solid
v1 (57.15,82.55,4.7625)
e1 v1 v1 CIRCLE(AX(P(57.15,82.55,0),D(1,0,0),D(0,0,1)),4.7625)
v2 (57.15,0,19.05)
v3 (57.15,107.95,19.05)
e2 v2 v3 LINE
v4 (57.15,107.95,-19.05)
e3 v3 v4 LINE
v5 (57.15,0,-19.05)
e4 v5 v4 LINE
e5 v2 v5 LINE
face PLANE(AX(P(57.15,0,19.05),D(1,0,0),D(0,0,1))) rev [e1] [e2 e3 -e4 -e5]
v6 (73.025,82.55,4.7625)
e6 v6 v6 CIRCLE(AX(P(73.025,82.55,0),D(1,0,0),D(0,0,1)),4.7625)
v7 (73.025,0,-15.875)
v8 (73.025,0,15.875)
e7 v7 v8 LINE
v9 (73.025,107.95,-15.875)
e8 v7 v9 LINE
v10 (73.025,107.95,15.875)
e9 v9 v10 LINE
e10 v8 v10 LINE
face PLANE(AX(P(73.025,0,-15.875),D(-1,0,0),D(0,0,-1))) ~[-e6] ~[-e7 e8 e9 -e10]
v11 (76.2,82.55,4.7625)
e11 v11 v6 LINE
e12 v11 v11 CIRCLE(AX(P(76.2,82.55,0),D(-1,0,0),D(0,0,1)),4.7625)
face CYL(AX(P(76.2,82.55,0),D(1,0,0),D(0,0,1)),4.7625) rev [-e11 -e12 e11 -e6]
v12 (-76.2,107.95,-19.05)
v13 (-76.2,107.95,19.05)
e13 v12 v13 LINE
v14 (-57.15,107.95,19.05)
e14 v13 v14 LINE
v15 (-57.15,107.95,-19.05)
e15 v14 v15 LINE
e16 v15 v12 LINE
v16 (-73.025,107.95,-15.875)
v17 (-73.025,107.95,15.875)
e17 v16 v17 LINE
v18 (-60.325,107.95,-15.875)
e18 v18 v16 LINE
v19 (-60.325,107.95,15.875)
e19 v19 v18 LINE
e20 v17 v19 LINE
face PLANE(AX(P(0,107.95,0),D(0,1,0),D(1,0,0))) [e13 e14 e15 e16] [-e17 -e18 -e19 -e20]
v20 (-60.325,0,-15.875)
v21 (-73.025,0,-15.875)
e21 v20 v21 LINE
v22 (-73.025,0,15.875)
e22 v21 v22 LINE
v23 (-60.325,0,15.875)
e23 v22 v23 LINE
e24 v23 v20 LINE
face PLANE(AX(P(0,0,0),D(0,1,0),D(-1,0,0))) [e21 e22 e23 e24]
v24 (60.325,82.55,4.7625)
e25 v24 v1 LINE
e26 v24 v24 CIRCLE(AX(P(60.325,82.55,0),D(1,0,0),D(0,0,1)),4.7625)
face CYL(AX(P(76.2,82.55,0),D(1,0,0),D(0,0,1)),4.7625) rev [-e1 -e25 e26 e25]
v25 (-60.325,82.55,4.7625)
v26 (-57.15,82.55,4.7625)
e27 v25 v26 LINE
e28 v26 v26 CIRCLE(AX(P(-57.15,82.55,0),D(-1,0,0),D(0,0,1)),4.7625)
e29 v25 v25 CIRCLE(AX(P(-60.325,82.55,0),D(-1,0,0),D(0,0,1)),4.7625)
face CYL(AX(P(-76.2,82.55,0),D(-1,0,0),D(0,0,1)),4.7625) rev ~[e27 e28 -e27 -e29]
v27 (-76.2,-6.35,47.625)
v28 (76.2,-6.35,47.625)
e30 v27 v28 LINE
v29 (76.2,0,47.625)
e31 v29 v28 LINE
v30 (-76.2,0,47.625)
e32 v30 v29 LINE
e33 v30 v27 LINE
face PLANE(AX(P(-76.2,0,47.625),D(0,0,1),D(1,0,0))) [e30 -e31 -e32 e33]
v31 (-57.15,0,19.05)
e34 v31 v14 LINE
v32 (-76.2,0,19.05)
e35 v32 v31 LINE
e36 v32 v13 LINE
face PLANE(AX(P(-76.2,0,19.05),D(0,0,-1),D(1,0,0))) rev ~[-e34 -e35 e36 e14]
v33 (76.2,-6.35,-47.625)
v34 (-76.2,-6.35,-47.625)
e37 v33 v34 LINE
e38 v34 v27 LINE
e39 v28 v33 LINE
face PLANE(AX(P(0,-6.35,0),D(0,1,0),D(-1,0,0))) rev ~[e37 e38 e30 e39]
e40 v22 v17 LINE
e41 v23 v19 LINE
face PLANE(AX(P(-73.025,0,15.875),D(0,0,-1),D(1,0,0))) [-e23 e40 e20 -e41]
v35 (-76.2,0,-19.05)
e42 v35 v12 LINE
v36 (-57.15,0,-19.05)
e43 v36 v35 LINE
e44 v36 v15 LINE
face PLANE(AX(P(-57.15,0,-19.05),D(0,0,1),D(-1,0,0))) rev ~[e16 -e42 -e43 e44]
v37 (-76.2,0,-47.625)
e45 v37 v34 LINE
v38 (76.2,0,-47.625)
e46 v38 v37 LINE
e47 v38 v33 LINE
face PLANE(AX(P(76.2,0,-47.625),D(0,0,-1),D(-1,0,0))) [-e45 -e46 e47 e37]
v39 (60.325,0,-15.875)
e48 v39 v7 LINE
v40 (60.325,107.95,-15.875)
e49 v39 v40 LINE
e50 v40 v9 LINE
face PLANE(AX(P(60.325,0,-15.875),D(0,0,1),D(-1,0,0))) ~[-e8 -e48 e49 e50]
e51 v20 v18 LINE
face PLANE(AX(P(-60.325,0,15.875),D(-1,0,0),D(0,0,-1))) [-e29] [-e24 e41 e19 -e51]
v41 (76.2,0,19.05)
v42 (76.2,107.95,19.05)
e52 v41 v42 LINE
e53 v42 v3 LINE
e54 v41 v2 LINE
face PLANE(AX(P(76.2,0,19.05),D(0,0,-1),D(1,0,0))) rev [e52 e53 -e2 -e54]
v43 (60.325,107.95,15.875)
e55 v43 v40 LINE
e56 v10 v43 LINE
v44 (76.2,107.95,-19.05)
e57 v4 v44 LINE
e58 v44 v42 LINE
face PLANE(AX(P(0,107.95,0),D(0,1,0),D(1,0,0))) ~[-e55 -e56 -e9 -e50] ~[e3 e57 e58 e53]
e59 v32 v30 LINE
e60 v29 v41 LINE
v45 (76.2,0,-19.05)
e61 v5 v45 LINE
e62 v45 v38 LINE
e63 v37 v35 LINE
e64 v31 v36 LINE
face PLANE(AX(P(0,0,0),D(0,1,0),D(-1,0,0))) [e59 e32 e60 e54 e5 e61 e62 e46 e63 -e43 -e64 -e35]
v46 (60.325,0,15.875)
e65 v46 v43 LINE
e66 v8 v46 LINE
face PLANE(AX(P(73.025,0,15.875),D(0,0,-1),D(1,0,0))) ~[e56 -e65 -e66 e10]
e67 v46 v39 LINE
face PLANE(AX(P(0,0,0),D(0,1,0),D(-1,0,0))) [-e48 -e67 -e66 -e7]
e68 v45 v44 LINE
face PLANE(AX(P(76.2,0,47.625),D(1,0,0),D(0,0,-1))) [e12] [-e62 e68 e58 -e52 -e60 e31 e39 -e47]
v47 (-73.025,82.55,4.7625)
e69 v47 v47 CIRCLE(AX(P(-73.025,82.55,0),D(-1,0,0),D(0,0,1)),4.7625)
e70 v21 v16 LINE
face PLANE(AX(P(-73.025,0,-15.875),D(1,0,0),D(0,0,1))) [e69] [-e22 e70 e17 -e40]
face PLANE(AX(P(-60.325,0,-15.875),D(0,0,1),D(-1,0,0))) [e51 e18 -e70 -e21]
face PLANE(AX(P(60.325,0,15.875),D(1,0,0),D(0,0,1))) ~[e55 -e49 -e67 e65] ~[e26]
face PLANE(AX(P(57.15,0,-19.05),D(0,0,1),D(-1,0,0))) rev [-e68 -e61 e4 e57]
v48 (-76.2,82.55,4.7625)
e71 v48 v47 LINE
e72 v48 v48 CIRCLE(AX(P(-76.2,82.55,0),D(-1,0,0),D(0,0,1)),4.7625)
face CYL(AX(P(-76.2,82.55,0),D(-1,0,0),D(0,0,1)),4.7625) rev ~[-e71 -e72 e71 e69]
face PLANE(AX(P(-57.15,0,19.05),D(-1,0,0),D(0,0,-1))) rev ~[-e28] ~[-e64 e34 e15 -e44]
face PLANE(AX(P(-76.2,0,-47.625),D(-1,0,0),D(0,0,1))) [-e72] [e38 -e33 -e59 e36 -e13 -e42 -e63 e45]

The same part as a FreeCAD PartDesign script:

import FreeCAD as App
import Part
import Sketcher

V = App.Vector
Q = App.Units.Quantity


def add_polygon(sketch, points):
    """Adds a closed chain of lines whose ends are joined by coincident constraints."""
    first, n = sketch.GeometryCount, len(points)
    for a, b in zip(points, points[1:] + points[:1]):
        sketch.addGeometry(Part.LineSegment(App.Vector(*a, 0), App.Vector(*b, 0)), False)
    for i in range(n):
        sketch.addConstraint(Sketcher.Constraint("Coincident", first + i, 2, first + (i + 1) % n, 1))

doc = App.newDocument("Part")
body = doc.addObject("PartDesign::Body", "Body")

# Sketch on XZ plane
sketch1 = body.newObject("Sketcher::SketchObject", "Sketch")
sketch1.AttachmentSupport = (doc.getObject("XZ_Plane"), [""])
sketch1.MapMode = "FlatFace"
add_polygon(sketch1, [(-76, -48), (-76, 48), (76, 48), (76, -48)])  # lines 0-3
sketch1.addConstraint([
    Sketcher.Constraint("Vertical", 0),
    Sketcher.Constraint("Horizontal", 1),
    Sketcher.Constraint("Vertical", 2),
    Sketcher.Constraint("Horizontal", 3),
    Sketcher.Constraint("Symmetric", 0, 2, 2, 2, -1, 1),
    Sketcher.Constraint("DistanceX", 1, 1, 1, 2, Q("6 in")),
    Sketcher.Constraint("DistanceY", 0, 1, 0, 2, Q("3.75 in")),
])
pad1 = body.newObject("PartDesign::Pad", "Pad")
pad1.Profile = sketch1
pad1.Length = Q("0.25 in")

# Sketch on XZ plane
sketch2 = body.newObject("Sketcher::SketchObject", "Sketch001")
sketch2.AttachmentSupport = (doc.getObject("XZ_Plane"), [""])
sketch2.MapMode = "FlatFace"
add_polygon(sketch2, [(-76, -19), (-76, 19), (-57, 19), (-57, -19)])  # lines 0-3
add_polygon(sketch2, [(-60, 16), (-73, 16), (-73, -16), (-60, -16)])  # lines 4-7
sketch2.addConstraint([
    Sketcher.Constraint("Vertical", 0),
    Sketcher.Constraint("Horizontal", 1),
    Sketcher.Constraint("Vertical", 2),
    Sketcher.Constraint("Horizontal", 3),
    Sketcher.Constraint("Horizontal", 4),
    Sketcher.Constraint("Vertical", 5),
    Sketcher.Constraint("Horizontal", 6),
    Sketcher.Constraint("Vertical", 7),
    Sketcher.Constraint("DistanceY", 0, 1, 0, 2, Q("1.5 in")),
    Sketcher.Constraint("DistanceX", 1, 1, 1, 2, Q("0.75 in")),
    Sketcher.Constraint("DistanceY", -1, 1, 0, 2, Q("0.75 in")),
    Sketcher.Constraint("DistanceX", 4, 2, 4, 1, Q("0.5 in")),
    Sketcher.Constraint("DistanceX", 0, 2, -1, 1, Q("3 in")),
    Sketcher.Constraint("DistanceX", 0, 2, 4, 2, Q("0.125 in")),
    Sketcher.Constraint("DistanceY", 4, 2, 0, 2, Q("0.125 in")),
    Sketcher.Constraint("DistanceY", 3, 2, 5, 2, Q("0.125 in")),
])
pad2 = body.newObject("PartDesign::Pad", "Pad001")
pad2.Profile = sketch2
pad2.Length = Q("4.25 in")
pad2.Reversed = True

# Sketch on YZ plane
sketch3 = body.newObject("Sketcher::SketchObject", "Sketch002")
sketch3.AttachmentSupport = (doc.getObject("YZ_Plane"), [""])
sketch3.MapMode = "FlatFace"
sketch3.AttachmentOffset = App.Placement(V(0, 0, -3 * 25.4), App.Rotation())
sketch3.addGeometry(Part.Circle(V(82.5, 0, 0), V(0, 0, 1), 4.8), False)
sketch3.addConstraint([
    Sketcher.Constraint("PointOnObject", 0, 3, -1),
    Sketcher.Constraint("Diameter", 0, Q("0.375 in")),
    Sketcher.Constraint("DistanceX", -1, 1, 0, 3, Q("3.25 in")),
])
pocket1 = body.newObject("PartDesign::Pocket", "Pocket")
pocket1.Profile = sketch3
pocket1.Type = "ThroughAll"
pocket1.Reversed = True
doc.recompute()

mirrored = body.newObject("PartDesign::Mirrored", "Mirrored")
mirrored.Originals = [pad2, pocket1]
mirrored.MirrorPlane = (doc.getObject("YZ_Plane"), [""])
body.Tip = mirrored

doc.recompute()
